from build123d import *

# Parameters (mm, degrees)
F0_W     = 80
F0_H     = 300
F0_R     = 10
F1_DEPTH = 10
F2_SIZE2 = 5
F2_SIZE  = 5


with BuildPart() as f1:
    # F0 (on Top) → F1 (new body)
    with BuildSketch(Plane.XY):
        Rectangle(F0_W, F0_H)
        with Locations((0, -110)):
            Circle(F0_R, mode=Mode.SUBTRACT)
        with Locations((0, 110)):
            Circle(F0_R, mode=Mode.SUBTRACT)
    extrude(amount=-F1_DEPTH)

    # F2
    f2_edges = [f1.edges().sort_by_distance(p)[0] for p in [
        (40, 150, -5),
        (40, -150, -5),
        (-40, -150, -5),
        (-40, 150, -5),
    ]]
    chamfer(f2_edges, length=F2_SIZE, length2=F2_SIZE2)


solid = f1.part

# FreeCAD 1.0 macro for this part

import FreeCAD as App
import Part
import Sketcher

V = App.Vector
Q = App.Units.Quantity


def edges_at(feature, points):
    """Names of the edges that pass closest to the given points."""
    edges = feature.Shape.Edges
    near = lambda p: min(range(len(edges)), key=lambda i: edges[i].distToShape(Part.Vertex(*p))[0])
    return sorted({f"Edge{near(p) + 1}" for p in points})


def add_polygon(sketch, points):
    """Adds a closed chain of lines whose ends are joined by coincident constraints."""
    first, n = sketch.GeometryCount, len(points)
    for a, b in zip(points, points[1:] + points[:1]):
        sketch.addGeometry(Part.LineSegment(App.Vector(*a, 0), App.Vector(*b, 0)), False)
    for i in range(n):
        sketch.addConstraint(Sketcher.Constraint("Coincident", first + i, 2, first + (i + 1) % n, 1))

doc = App.newDocument("Part")
body = doc.addObject("PartDesign::Body", "Body")

# Sketch on XY plane
sketch1 = body.newObject("Sketcher::SketchObject", "Sketch")
sketch1.AttachmentSupport = (doc.getObject("XY_Plane"), [""])
sketch1.MapMode = "FlatFace"
add_polygon(sketch1, [(-40, 150), (-40, -150), (40, -150), (40, 150)])  # lines 0-3
sketch1.addGeometry(Part.Circle(V(0, -110, 0), V(0, 0, 1), 10), False)  # 4
sketch1.addGeometry(Part.Circle(V(0, 110, 0), V(0, 0, 1), 10), False)  # 5
sketch1.addConstraint(Sketcher.Constraint("Vertical", 0))
sketch1.addConstraint(Sketcher.Constraint("Horizontal", 1))
sketch1.addConstraint(Sketcher.Constraint("Vertical", 2))
sketch1.addConstraint(Sketcher.Constraint("Horizontal", 3))
sketch1.addConstraint(Sketcher.Constraint("Equal", 4, 5))
sketch1.addConstraint(Sketcher.Constraint("Symmetric", 4, 3, 5, 3, -1, 1))
sketch1.addConstraint(Sketcher.Constraint("Symmetric", 0, 2, 2, 2, -1, 1))
sketch1.addConstraint(Sketcher.Constraint("PointOnObject", 4, 3, -2))
sketch1.addConstraint(Sketcher.Constraint("Diameter", 4, Q("20 mm")))
sketch1.addConstraint(Sketcher.Constraint("DistanceX", 1, 1, 1, 2, Q("80 mm")))
sketch1.addConstraint(Sketcher.Constraint("DistanceY", 0, 2, 0, 1, Q("300 mm")))
sketch1.addConstraint(Sketcher.Constraint("DistanceY", 4, 3, -1, 1, Q("110 mm")))
pad1 = body.newObject("PartDesign::Pad", "Pad")
pad1.Profile = sketch1
pad1.Length = 10
pad1.Reversed = True
doc.recompute()

chamfer = body.newObject("PartDesign::Chamfer", "Chamfer")
chamfer.Base = (pad1, edges_at(pad1, [
    (40, 150, -5),
    (40, -150, -5),
    (-40, -150, -5),
    (-40, 150, -5),
]))
chamfer.ChamferType = "Two distances"
chamfer.Size = 5
chamfer.Size2 = 5

doc.recompute()
